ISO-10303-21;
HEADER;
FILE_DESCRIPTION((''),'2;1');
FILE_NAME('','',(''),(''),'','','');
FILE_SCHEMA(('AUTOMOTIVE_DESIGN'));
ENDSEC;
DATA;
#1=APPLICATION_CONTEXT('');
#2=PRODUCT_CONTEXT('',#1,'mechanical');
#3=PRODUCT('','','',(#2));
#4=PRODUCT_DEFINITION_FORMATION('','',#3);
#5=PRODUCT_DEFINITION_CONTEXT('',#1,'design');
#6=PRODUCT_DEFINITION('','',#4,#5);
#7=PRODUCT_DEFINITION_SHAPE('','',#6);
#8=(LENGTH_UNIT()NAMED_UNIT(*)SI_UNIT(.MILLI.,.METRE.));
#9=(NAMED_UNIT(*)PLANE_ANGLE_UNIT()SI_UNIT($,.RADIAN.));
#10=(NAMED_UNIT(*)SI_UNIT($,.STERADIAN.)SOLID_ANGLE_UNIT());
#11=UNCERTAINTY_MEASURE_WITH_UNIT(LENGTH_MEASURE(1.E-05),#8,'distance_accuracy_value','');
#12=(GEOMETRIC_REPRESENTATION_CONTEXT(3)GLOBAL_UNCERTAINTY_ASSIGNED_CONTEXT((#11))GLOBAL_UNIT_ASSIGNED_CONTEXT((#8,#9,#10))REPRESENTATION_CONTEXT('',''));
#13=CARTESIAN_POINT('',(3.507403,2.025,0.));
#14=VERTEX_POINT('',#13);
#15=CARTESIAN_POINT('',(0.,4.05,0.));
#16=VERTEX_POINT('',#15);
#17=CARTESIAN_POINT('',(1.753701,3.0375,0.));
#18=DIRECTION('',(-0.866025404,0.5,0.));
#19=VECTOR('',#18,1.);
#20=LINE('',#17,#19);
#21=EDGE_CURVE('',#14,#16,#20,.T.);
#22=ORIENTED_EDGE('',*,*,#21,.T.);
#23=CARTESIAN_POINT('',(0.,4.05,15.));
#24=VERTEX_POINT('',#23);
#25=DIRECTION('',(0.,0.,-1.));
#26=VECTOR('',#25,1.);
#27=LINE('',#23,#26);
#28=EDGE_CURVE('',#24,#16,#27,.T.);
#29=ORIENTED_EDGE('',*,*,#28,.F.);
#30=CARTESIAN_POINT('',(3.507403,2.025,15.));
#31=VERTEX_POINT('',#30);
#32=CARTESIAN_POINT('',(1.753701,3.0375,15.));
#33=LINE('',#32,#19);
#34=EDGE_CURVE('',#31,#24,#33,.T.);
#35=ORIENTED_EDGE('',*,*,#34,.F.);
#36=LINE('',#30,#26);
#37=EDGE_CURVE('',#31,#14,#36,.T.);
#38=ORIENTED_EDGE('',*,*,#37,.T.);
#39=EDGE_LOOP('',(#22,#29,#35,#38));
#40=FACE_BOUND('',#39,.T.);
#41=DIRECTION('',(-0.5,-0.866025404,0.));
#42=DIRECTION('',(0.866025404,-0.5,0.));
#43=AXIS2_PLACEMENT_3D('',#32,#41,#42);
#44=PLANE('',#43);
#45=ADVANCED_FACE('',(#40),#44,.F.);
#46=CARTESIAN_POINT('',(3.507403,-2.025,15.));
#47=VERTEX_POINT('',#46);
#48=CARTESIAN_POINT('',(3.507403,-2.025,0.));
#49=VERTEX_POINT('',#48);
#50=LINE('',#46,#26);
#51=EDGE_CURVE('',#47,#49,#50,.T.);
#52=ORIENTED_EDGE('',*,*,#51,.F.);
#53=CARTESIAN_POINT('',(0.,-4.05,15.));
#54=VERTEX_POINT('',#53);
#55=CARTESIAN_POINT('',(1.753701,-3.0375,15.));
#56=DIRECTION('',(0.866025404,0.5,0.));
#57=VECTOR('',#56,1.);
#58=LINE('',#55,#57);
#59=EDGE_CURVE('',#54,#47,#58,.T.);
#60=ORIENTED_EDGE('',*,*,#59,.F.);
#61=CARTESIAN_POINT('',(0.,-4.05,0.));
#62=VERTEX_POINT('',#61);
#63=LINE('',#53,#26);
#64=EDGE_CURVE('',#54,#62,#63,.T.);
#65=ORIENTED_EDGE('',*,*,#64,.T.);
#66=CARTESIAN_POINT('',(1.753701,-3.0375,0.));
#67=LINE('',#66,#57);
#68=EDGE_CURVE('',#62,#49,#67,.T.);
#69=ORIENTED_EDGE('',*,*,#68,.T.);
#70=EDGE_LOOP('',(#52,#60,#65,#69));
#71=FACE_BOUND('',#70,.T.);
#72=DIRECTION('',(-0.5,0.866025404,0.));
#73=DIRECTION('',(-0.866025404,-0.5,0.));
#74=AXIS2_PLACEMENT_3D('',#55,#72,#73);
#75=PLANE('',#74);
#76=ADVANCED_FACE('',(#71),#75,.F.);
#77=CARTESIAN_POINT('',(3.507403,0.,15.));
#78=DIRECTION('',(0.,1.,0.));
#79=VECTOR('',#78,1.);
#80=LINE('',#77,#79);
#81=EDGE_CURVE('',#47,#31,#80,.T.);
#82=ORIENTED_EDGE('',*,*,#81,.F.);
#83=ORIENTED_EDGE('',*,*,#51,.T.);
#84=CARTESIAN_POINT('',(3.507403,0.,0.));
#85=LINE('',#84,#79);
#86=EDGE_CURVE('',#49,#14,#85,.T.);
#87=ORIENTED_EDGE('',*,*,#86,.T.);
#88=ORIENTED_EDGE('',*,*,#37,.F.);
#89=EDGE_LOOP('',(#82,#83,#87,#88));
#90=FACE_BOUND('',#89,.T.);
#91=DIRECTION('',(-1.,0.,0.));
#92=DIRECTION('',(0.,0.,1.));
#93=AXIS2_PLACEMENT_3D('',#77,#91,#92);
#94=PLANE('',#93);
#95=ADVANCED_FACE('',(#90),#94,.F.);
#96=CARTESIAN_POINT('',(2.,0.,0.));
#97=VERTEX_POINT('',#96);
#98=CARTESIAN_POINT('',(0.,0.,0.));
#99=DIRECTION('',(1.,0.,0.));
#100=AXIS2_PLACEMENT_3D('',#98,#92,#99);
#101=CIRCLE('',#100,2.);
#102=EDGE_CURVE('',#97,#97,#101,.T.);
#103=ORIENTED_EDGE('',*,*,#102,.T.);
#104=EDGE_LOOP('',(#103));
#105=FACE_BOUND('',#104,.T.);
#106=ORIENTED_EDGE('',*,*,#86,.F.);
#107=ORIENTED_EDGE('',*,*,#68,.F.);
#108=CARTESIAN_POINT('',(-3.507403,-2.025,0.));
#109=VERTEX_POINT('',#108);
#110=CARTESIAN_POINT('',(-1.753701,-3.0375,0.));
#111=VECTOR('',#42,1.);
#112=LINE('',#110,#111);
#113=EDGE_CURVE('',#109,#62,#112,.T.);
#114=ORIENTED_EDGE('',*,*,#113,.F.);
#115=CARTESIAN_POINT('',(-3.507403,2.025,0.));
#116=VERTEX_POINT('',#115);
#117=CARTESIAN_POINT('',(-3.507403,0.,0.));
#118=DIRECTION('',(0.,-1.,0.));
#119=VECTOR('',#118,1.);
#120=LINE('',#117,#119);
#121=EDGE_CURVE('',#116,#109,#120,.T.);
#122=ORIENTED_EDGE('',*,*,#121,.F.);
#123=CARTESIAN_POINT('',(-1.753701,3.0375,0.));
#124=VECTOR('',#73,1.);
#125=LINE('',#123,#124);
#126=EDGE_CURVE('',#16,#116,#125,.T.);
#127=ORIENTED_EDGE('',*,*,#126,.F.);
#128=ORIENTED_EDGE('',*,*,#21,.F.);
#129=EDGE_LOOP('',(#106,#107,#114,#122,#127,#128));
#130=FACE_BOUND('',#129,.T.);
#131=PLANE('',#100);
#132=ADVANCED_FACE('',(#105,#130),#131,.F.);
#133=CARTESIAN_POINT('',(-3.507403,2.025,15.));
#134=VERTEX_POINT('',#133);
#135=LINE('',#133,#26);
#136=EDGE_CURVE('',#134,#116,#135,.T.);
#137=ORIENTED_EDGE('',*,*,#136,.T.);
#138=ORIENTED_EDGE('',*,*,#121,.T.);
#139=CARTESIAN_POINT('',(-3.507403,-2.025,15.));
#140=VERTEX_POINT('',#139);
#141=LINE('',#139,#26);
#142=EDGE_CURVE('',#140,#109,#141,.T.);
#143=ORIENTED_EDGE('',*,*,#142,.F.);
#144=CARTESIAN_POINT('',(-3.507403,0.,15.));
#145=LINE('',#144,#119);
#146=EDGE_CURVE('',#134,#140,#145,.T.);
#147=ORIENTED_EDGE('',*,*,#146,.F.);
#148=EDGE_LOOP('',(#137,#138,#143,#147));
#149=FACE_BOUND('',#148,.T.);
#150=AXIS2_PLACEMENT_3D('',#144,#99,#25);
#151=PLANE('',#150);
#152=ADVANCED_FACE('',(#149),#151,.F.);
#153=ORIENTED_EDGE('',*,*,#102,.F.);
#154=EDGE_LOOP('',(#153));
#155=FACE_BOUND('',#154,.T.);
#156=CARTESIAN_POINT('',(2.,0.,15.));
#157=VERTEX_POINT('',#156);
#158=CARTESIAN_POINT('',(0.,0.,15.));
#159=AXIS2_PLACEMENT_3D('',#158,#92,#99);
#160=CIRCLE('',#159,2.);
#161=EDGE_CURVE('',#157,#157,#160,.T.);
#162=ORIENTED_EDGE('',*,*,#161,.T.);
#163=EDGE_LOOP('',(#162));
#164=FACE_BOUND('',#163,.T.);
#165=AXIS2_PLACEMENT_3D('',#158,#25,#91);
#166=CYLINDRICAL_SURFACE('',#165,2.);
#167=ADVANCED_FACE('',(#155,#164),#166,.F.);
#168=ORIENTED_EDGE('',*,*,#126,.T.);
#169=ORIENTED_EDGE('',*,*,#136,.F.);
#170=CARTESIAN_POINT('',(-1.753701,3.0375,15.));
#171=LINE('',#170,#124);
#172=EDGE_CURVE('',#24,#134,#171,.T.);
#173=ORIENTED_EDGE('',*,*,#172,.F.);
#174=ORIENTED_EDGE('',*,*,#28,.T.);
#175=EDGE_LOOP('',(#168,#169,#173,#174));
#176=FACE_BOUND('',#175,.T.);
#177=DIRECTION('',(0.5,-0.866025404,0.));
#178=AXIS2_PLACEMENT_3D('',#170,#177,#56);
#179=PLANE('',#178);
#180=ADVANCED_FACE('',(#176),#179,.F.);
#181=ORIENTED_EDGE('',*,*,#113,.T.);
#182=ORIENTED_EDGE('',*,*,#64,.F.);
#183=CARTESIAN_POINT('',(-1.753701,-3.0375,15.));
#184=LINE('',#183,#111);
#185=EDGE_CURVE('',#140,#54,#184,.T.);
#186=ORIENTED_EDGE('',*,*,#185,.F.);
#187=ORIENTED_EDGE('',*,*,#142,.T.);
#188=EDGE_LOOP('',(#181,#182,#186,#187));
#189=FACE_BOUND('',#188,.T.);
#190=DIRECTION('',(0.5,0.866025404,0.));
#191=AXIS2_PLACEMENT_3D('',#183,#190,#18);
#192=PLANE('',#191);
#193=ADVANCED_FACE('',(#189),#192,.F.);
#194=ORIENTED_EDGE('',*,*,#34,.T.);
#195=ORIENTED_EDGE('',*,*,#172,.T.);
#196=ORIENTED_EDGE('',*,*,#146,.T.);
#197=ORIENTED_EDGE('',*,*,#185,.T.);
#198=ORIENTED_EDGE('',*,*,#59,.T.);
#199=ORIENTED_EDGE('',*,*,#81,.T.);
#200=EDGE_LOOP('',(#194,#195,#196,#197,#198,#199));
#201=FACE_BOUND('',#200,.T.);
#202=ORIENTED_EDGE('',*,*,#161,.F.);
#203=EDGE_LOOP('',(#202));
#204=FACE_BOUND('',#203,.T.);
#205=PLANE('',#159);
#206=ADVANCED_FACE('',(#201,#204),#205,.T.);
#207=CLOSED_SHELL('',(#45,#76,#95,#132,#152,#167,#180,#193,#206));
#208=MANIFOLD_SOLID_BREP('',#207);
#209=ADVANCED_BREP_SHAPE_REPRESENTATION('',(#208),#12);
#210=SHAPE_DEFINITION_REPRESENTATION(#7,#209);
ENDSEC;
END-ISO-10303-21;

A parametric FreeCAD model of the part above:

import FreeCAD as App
import Part
import Sketcher
Q = App.Units.Quantity


def add_polygon(sketch, points):
    """Adds a closed chain of lines whose ends are joined by coincident constraints."""
    first, n = sketch.GeometryCount, len(points)
    for a, b in zip(points, points[1:] + points[:1]):
        sketch.addGeometry(Part.LineSegment(App.Vector(*a, 0), App.Vector(*b, 0)), False)
    for i in range(n):
        sketch.addConstraint(Sketcher.Constraint("Coincident", first + i, 2, first + (i + 1) % n, 1))

doc = App.newDocument("Part")
body = doc.addObject("PartDesign::Body", "Body")

# Sketch on XY plane
sketch1 = body.newObject("Sketcher::SketchObject", "Sketch")
sketch1.AttachmentSupport = (doc.getObject("XY_Plane"), [""])
sketch1.MapMode = "FlatFace"
add_polygon(sketch1, [(0, 4), (-3.5, 2), (-3.5, -2), (0, -4), (3.5, -2), (3.5, 2)])  # lines 0-5
sketch1.addGeometry(Part.Circle(App.Vector(0, 0, 0), App.Vector(0, 0, 1), 2), False)  # 6
sketch1.addConstraint([
    Sketcher.Constraint("Vertical", 1),
    Sketcher.Constraint("Vertical", 4),
    Sketcher.Constraint("Coincident", 6, 3, -1, 1),
    Sketcher.Constraint("Symmetric", 0, 2, 3, 2, -1, 1),
    Sketcher.Constraint("Symmetric", 2, 2, 5, 2, -1, 1),
    Sketcher.Constraint("PointOnObject", 2, 2, -2),
    Sketcher.Constraint("Parallel", 2, 5),
    Sketcher.Constraint("Horizontal", 1, 2, 3, 2),
    Sketcher.Constraint("Diameter", 6, Q("4 mm")),
    Sketcher.Constraint("Angle", 0, Q("-150 deg")),
    Sketcher.Constraint("DistanceY", 1, 2, 1, 1, Q("4.05 mm")),
    Sketcher.Constraint("Distance", 0, Q("4.05 mm")),
])
pad1 = body.newObject("PartDesign::Pad", "Pad")
pad1.Profile = sketch1
pad1.Length = 15

doc.recompute()
